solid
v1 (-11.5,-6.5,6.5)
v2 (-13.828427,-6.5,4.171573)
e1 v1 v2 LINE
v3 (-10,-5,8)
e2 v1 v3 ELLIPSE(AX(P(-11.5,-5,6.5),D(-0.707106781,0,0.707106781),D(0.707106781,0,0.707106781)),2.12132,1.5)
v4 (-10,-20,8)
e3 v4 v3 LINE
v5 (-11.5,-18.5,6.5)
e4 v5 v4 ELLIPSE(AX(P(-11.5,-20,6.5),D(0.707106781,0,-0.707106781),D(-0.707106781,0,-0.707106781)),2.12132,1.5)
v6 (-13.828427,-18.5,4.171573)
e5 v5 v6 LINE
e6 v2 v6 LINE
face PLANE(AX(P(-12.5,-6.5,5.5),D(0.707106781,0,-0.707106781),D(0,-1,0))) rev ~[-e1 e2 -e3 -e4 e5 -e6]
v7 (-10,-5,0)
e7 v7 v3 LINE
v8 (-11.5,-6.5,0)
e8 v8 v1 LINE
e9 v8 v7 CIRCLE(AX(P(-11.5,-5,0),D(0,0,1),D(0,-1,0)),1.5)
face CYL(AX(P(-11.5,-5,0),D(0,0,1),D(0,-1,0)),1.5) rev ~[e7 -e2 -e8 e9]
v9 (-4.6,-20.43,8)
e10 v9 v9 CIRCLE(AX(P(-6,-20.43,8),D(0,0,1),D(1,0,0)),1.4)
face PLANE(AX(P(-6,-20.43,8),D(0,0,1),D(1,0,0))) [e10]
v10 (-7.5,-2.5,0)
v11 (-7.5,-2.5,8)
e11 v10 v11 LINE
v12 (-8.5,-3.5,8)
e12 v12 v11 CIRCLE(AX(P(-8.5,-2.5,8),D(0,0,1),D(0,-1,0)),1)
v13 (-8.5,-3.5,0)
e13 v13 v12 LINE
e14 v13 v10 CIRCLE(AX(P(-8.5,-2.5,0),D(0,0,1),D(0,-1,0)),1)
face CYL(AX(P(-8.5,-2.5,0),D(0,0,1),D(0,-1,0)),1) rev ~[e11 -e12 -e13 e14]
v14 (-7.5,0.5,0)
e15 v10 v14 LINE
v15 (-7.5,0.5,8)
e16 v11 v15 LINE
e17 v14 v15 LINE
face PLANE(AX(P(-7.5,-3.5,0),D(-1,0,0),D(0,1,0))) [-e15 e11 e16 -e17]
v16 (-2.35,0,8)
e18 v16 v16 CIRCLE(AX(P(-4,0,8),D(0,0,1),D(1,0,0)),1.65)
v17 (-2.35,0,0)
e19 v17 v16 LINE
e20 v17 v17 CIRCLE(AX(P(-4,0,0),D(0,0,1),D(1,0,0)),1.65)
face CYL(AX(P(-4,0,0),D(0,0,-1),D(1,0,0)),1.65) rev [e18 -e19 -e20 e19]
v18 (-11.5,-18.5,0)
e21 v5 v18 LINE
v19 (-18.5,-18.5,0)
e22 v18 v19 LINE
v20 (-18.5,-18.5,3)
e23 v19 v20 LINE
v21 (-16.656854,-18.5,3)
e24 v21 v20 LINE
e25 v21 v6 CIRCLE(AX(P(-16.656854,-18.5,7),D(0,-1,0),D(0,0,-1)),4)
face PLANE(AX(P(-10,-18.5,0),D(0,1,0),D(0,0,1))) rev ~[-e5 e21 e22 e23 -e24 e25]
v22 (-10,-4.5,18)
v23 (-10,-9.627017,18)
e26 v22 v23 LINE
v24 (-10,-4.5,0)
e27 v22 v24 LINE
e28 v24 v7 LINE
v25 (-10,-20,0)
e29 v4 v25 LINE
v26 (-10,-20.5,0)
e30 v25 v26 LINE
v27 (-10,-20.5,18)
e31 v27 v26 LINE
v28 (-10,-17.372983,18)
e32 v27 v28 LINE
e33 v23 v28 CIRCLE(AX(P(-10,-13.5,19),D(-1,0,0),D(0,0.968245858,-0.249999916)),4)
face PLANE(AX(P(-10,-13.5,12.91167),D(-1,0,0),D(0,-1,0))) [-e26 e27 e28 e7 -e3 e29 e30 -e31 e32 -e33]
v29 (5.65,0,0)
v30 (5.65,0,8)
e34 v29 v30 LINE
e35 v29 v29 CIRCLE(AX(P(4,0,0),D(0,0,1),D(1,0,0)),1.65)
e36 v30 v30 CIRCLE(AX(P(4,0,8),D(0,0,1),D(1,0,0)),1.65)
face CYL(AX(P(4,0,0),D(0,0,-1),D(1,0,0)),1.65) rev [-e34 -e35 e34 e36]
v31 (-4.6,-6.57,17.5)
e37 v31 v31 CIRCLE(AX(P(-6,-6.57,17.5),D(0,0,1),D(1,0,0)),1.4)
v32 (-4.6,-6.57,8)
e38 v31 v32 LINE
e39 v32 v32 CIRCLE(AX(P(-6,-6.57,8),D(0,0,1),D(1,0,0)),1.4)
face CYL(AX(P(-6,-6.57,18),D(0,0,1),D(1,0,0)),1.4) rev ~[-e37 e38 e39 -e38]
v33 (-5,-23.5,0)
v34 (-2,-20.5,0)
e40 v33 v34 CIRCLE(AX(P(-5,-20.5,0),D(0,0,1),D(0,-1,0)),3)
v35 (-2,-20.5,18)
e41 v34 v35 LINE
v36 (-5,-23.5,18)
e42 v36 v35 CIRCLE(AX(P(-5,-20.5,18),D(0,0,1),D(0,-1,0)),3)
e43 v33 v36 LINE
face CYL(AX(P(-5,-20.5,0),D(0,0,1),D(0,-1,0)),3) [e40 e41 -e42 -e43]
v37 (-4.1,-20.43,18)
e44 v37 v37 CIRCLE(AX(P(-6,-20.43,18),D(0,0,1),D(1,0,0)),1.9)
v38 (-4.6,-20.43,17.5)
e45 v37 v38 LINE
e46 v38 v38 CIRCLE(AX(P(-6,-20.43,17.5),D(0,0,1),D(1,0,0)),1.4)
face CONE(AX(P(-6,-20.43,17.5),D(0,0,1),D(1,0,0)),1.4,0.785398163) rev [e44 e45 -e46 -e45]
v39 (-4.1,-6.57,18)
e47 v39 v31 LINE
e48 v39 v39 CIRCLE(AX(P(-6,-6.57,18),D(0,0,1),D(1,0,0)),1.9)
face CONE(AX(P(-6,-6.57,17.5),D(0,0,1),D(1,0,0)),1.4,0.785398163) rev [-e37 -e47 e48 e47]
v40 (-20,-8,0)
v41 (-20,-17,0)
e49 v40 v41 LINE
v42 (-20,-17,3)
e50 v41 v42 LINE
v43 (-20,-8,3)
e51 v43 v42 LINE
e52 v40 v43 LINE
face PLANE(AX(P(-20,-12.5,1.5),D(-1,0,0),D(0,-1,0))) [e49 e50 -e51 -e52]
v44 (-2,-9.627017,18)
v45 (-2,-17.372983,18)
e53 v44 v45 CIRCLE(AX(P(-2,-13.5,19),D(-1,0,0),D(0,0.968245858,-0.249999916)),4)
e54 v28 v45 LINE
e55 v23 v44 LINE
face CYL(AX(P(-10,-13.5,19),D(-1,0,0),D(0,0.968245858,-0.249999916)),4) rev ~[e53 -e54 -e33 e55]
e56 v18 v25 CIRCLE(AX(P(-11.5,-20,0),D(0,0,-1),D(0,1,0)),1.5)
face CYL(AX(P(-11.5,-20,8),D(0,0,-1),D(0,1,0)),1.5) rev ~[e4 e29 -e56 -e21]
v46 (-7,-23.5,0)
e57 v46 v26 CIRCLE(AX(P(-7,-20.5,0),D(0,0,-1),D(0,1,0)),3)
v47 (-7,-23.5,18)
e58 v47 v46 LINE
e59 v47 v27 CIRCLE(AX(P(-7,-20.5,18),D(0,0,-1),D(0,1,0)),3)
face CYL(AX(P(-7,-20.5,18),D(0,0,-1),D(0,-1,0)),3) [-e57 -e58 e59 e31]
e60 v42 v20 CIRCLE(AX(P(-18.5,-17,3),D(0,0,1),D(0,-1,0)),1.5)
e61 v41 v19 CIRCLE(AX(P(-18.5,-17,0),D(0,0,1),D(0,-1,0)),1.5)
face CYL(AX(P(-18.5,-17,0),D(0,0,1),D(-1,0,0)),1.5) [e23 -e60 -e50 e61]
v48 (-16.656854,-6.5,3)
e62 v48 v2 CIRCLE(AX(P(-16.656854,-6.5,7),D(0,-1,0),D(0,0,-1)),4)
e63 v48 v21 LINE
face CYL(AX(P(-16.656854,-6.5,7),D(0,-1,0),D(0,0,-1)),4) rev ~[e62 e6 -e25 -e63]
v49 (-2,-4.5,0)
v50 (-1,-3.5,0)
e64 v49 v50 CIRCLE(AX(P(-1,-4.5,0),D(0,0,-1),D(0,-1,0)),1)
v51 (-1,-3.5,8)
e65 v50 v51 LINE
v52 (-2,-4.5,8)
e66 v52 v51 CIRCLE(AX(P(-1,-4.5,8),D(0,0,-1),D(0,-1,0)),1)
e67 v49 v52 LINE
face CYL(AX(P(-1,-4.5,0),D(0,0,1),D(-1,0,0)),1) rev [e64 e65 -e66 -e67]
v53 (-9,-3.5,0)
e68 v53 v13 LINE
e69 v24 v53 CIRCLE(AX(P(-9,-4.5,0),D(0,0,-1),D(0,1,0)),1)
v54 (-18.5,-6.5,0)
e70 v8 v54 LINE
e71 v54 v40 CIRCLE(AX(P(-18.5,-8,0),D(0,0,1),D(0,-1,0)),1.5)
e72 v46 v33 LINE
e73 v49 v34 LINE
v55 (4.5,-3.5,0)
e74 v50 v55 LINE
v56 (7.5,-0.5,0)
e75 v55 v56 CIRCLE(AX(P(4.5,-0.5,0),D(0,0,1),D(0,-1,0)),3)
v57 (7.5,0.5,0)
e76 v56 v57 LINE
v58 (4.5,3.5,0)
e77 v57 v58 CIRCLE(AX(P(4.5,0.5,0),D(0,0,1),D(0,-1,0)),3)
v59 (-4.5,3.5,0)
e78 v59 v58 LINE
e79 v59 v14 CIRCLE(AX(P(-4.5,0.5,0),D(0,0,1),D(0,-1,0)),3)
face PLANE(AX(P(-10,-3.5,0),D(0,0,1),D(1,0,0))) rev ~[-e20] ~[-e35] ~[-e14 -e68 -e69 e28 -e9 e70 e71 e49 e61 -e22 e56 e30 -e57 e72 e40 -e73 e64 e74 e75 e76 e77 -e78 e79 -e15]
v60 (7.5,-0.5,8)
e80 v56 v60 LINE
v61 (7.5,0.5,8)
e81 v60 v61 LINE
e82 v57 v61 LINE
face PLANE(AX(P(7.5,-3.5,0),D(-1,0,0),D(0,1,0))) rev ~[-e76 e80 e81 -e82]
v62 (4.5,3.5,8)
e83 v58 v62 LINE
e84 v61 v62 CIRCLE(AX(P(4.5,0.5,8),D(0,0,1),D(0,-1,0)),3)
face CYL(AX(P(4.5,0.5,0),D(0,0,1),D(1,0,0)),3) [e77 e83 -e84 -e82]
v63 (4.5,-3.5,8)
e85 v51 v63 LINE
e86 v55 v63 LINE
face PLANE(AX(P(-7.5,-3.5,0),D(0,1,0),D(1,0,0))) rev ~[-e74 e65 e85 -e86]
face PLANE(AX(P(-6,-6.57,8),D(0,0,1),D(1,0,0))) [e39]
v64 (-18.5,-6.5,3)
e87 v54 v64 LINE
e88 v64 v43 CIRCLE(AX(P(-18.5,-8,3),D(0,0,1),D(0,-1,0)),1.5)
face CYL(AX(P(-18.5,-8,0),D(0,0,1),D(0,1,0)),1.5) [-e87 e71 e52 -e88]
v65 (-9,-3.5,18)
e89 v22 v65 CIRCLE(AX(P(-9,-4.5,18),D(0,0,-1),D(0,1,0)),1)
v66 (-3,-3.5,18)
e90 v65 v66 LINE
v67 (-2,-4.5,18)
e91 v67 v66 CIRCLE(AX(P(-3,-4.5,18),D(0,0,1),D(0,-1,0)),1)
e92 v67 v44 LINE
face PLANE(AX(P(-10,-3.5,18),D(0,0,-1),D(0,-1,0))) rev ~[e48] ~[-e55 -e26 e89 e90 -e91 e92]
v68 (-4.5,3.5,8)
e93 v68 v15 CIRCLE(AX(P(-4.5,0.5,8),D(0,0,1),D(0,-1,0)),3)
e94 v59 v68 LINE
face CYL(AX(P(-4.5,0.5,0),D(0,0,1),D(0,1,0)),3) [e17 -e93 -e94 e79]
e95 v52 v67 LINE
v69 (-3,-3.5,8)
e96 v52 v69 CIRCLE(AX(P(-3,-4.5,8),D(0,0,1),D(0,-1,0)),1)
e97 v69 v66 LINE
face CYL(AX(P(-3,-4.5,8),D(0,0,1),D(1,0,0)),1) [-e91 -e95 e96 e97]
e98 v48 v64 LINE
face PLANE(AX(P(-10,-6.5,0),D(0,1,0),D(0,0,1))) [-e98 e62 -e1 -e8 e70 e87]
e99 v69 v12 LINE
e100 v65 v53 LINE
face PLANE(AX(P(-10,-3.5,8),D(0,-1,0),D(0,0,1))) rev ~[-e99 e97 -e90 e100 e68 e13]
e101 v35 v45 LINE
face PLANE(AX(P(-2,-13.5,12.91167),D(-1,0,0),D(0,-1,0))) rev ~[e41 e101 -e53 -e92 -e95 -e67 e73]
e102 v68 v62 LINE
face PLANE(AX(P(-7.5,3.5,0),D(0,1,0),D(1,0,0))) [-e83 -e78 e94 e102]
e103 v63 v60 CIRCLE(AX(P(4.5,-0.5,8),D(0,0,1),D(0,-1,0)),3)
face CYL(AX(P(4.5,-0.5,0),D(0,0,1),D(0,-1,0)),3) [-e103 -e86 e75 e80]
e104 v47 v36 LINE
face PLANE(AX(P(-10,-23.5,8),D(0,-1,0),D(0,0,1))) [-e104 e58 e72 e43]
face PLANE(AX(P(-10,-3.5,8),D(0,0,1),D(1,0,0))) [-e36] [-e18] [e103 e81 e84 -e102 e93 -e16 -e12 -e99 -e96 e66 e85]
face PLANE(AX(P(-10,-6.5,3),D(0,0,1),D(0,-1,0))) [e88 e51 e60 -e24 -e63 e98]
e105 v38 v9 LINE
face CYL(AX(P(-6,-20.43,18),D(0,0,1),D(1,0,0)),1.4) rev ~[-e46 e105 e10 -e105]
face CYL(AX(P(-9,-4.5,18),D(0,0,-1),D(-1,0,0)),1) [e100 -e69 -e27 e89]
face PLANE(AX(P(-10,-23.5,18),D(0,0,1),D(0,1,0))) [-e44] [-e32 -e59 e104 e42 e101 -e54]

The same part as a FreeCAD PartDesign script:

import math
import FreeCAD as App
import Part
import Sketcher


def edges_at(feature, points):
    """Names of the edges that pass closest to the given points."""
    edges = feature.Shape.Edges
    near = lambda p: min(range(len(edges)), key=lambda i: edges[i].distToShape(Part.Vertex(*p))[0])
    return sorted({f"Edge{near(p) + 1}" for p in points})


def add_polygon(sketch, points):
    """Adds a closed chain of lines whose ends are joined by coincident constraints."""
    first, n = sketch.GeometryCount, len(points)
    for a, b in zip(points, points[1:] + points[:1]):
        sketch.addGeometry(Part.LineSegment(App.Vector(*a, 0), App.Vector(*b, 0)), False)
    for i in range(n):
        sketch.addConstraint(Sketcher.Constraint("Coincident", first + i, 2, first + (i + 1) % n, 1))

doc = App.newDocument("Part")
body = doc.addObject("PartDesign::Body", "Body")

sketch1 = body.newObject("Sketcher::SketchObject", "Sketch")
sketch1.AttachmentSupport = (doc.getObject("XY_Plane"), [""])
sketch1.MapMode = "FlatFace"
add_polygon(sketch1, [(-7.5, 3.5), (-7.5, -3.5), (7.5, -3.5), (7.5, 3.5)])
sketch1.addGeometry(Part.Circle(App.Vector(-4, 0, 0), App.Vector(0, 0, 1), 1.6), False)
sketch1.addGeometry(Part.Circle(App.Vector(4, 0, 0), App.Vector(0, 0, 1), 1.6), False)
sketch1.addConstraint(Sketcher.Constraint("Vertical", 0))
sketch1.addConstraint(Sketcher.Constraint("Horizontal", 1))
sketch1.addConstraint(Sketcher.Constraint("Vertical", 2))
sketch1.addConstraint(Sketcher.Constraint("Horizontal", 3))
sketch1.addConstraint(Sketcher.Constraint("Equal", 4, 5))
sketch1.addConstraint(Sketcher.Constraint("Symmetric", 4, 3, 5, 3, -1, 1))
sketch1.addConstraint(Sketcher.Constraint("Symmetric", 0, 2, 2, 2, -1, 1))
sketch1.addConstraint(Sketcher.Constraint("PointOnObject", 4, 3, -1))
sketch1.addConstraint(Sketcher.Constraint("Diameter", 4, 3.3))
sketch1.addConstraint(Sketcher.Constraint("DistanceX", 1, 1, 1, 2, 15.0))
sketch1.addConstraint(Sketcher.Constraint("DistanceY", 0, 2, 0, 1, 7.0))
sketch1.addConstraint(Sketcher.Constraint("DistanceX", 4, 3, -1, 1, 4.0))
pad1 = body.newObject("PartDesign::Pad", "Pad")
pad1.Profile = sketch1
pad1.Length = 8

sketch2 = body.newObject("Sketcher::SketchObject", "Sketch001")
sketch2.AttachmentSupport = (doc.getObject("XZ_Plane"), [""])
sketch2.MapMode = "FlatFace"
sketch2.AttachmentOffset = App.Placement(App.Vector(0, 0, 3.5), App.Rotation())
add_polygon(sketch2, [(-10, 8), (-10, 0), (-2, 0), (-2, 8)])
sketch2.addConstraint(Sketcher.Constraint("Vertical", 0))
sketch2.addConstraint(Sketcher.Constraint("Horizontal", 1))
sketch2.addConstraint(Sketcher.Constraint("Vertical", 2))
sketch2.addConstraint(Sketcher.Constraint("Horizontal", 3))
sketch2.addConstraint(Sketcher.Constraint("PointOnObject", 0, 2, -1))
sketch2.addConstraint(Sketcher.Constraint("Equal", 3, 0))
sketch2.addConstraint(Sketcher.Constraint("DistanceX", 1, 1, 1, 2, 8.0))
sketch2.addConstraint(Sketcher.Constraint("DistanceX", 0, 2, -1, 1, 10.0))
pad2 = body.newObject("PartDesign::Pad", "Pad001")
pad2.Profile = sketch2
pad2.Length = 20

sketch3 = body.newObject("Sketcher::SketchObject", "Sketch002")
sketch3.AttachmentSupport = (doc.getObject("YZ_Plane"), [""])
sketch3.MapMode = "FlatFace"
sketch3.AttachmentOffset = App.Placement(App.Vector(0, 0, -10), App.Rotation())
sketch3.addGeometry(Part.LineSegment(App.Vector(-3.5, 8, 0), App.Vector(-23.5, 8, 0)), False)
sketch3.addGeometry(Part.LineSegment(App.Vector(-23.5, 8, 0), App.Vector(-23.5, 18, 0)), False)
sketch3.addGeometry(Part.LineSegment(App.Vector(-23.5, 18, 0), App.Vector(-17.4, 18, 0)), False)
sketch3.addGeometry(Part.ArcOfCircle(Part.Circle(App.Vector(-13.5, 19, 0), App.Vector(0, 0, 1), 4), math.radians(-166), math.radians(-14)), False)
sketch3.addGeometry(Part.LineSegment(App.Vector(-9.6, 18, 0), App.Vector(-3.5, 18, 0)), False)
sketch3.addGeometry(Part.LineSegment(App.Vector(-3.5, 18, 0), App.Vector(-3.5, 8, 0)), False)
sketch3.addConstraint(Sketcher.Constraint("Coincident", 0, 2, 1, 1))
sketch3.addConstraint(Sketcher.Constraint("Coincident", 1, 2, 2, 1))
sketch3.addConstraint(Sketcher.Constraint("Coincident", 2, 2, 3, 1))
sketch3.addConstraint(Sketcher.Constraint("Coincident", 3, 2, 4, 1))
sketch3.addConstraint(Sketcher.Constraint("Coincident", 4, 2, 5, 1))
sketch3.addConstraint(Sketcher.Constraint("Coincident", 5, 2, 0, 1))
sketch3.addConstraint(Sketcher.Constraint("Horizontal", 0))
sketch3.addConstraint(Sketcher.Constraint("Vertical", 1))
sketch3.addConstraint(Sketcher.Constraint("Horizontal", 2))
sketch3.addConstraint(Sketcher.Constraint("Horizontal", 4))
sketch3.addConstraint(Sketcher.Constraint("Vertical", 5))
sketch3.addConstraint(Sketcher.Constraint("Horizontal", 2, 2, 3, 2))
sketch3.addConstraint(Sketcher.Constraint("Equal", 2, 4))
sketch3.addConstraint(Sketcher.Constraint("Radius", 3, 4.0))
sketch3.addConstraint(Sketcher.Constraint("DistanceX", 0, 2, 0, 1, 20.0))
sketch3.addConstraint(Sketcher.Constraint("DistanceY", 1, 1, 1, 2, 10.0))
sketch3.addConstraint(Sketcher.Constraint("DistanceY", -1, 1, 3, 3, 19.0))
sketch3.addConstraint(Sketcher.Constraint("DistanceY", -1, 1, 0, 2, 8.0))
sketch3.addConstraint(Sketcher.Constraint("DistanceX", 3, 3, -1, 1, 13.5))
pad3 = body.newObject("PartDesign::Pad", "Pad002")
pad3.Profile = sketch3
pad3.Length = 8

sketch4 = body.newObject("Sketcher::SketchObject", "Sketch003")
sketch4.AttachmentSupport = (doc.getObject("XY_Plane"), [""])
sketch4.MapMode = "FlatFace"
sketch4.AttachmentOffset = App.Placement(App.Vector(0, 0, 18), App.Rotation())
sketch4.addGeometry(Part.Circle(App.Vector(-6, -6.6, 0), App.Vector(0, 0, 1), 1.4), False)
sketch4.addGeometry(Part.Circle(App.Vector(-6, -20.4, 0), App.Vector(0, 0, 1), 1.4), False)
sketch4.addConstraint(Sketcher.Constraint("Equal", 0, 1))
sketch4.addConstraint(Sketcher.Constraint("Vertical", 0, 3, 1, 3))
sketch4.addConstraint(Sketcher.Constraint("Diameter", 0, 2.8))
sketch4.addConstraint(Sketcher.Constraint("DistanceX", 0, 3, -1, 1, 6.0))
sketch4.addConstraint(Sketcher.Constraint("DistanceY", 0, 3, -1, 1, 6.57))
sketch4.addConstraint(Sketcher.Constraint("DistanceY", 1, 3, -1, 1, 20.43))
pocket1 = body.newObject("PartDesign::Pocket", "Pocket")
pocket1.Profile = sketch4
pocket1.Length = 10
doc.recompute()

chamfer = body.newObject("PartDesign::Chamfer", "Chamfer")
chamfer.Base = (pocket1, edges_at(pocket1, [(-7.4, -20.43, 18), (-7.4, -6.57, 18)]))
chamfer.Size = 0.5
doc.recompute()

fillet = body.newObject("PartDesign::Fillet", "Fillet")
fillet.Base = (chamfer, edges_at(chamfer, [
    (-7.5, 3.5, 4),
    (7.5, 3.5, 4),
    (7.5, -3.5, 4),
    (-2, -23.5, 9),
    (-10, -23.5, 9),
]))
fillet.Radius = 3
doc.recompute()

fillet2 = body.newObject("PartDesign::Fillet", "Fillet001")
fillet2.Base = (fillet, edges_at(fillet, [(-7.5, -3.5, 4), (-10, -3.5, 9)]))
fillet2.Radius = 1
doc.recompute()

fillet3 = body.newObject("PartDesign::Fillet", "Fillet002")
fillet3.Base = (fillet2, edges_at(fillet2, [(-2, -3.5, 4)]))
fillet3.Radius = 1
doc.recompute()

fillet4 = body.newObject("PartDesign::Fillet", "Fillet003")
fillet4.Base = (fillet3, edges_at(fillet3, [(-2, -3.5, 13)]))
fillet4.Radius = 1

sketch5 = body.newObject("Sketcher::SketchObject", "Sketch004")
sketch5.AttachmentSupport = (doc.getObject("YZ_Plane"), [""])
sketch5.MapMode = "FlatFace"
sketch5.AttachmentOffset = App.Placement(App.Vector(0, 0, -10), App.Rotation())
add_polygon(sketch5, [(-6.5, 3), (-6.5, 0), (-18.5, 0), (-18.5, 3)])
sketch5.addConstraint(Sketcher.Constraint("Vertical", 0))
sketch5.addConstraint(Sketcher.Constraint("Horizontal", 1))
sketch5.addConstraint(Sketcher.Constraint("Vertical", 2))
sketch5.addConstraint(Sketcher.Constraint("Horizontal", 3))
sketch5.addConstraint(Sketcher.Constraint("PointOnObject", 0, 2, -1))
sketch5.addConstraint(Sketcher.Constraint("DistanceX", 1, 2, 1, 1, 12.0))
sketch5.addConstraint(Sketcher.Constraint("DistanceY", 0, 2, 0, 1, 3.0))
sketch5.addConstraint(Sketcher.Constraint("DistanceX", 0, 2, -1, 1, 6.5))
pad4 = body.newObject("PartDesign::Pad", "Pad003")
pad4.Profile = sketch5
pad4.Length = 10
pad4.Reversed = True
doc.recompute()

chamfer2 = body.newObject("PartDesign::Chamfer", "Chamfer001")
chamfer2.Base = (pad4, edges_at(pad4, [(-10, -12.5, 3)]))
chamfer2.Size = 5
doc.recompute()

fillet5 = body.newObject("PartDesign::Fillet", "Fillet004")
fillet5.Base = (chamfer2, edges_at(chamfer2, [(-15, -12.5, 3)]))
fillet5.Radius = 4
doc.recompute()

fillet6 = body.newObject("PartDesign::Fillet", "Fillet005")
fillet6.Base = (fillet5, edges_at(fillet5, [
    (-20, -6.5, 1.5),
    (-10, -6.5, 4),
    (-10, -18.5, 4),
    (-10, -18.5, 4),
    (-20, -18.5, 1.5),
    (-10, -6.5, 4),
]))
fillet6.Radius = 1.5

doc.recompute()
